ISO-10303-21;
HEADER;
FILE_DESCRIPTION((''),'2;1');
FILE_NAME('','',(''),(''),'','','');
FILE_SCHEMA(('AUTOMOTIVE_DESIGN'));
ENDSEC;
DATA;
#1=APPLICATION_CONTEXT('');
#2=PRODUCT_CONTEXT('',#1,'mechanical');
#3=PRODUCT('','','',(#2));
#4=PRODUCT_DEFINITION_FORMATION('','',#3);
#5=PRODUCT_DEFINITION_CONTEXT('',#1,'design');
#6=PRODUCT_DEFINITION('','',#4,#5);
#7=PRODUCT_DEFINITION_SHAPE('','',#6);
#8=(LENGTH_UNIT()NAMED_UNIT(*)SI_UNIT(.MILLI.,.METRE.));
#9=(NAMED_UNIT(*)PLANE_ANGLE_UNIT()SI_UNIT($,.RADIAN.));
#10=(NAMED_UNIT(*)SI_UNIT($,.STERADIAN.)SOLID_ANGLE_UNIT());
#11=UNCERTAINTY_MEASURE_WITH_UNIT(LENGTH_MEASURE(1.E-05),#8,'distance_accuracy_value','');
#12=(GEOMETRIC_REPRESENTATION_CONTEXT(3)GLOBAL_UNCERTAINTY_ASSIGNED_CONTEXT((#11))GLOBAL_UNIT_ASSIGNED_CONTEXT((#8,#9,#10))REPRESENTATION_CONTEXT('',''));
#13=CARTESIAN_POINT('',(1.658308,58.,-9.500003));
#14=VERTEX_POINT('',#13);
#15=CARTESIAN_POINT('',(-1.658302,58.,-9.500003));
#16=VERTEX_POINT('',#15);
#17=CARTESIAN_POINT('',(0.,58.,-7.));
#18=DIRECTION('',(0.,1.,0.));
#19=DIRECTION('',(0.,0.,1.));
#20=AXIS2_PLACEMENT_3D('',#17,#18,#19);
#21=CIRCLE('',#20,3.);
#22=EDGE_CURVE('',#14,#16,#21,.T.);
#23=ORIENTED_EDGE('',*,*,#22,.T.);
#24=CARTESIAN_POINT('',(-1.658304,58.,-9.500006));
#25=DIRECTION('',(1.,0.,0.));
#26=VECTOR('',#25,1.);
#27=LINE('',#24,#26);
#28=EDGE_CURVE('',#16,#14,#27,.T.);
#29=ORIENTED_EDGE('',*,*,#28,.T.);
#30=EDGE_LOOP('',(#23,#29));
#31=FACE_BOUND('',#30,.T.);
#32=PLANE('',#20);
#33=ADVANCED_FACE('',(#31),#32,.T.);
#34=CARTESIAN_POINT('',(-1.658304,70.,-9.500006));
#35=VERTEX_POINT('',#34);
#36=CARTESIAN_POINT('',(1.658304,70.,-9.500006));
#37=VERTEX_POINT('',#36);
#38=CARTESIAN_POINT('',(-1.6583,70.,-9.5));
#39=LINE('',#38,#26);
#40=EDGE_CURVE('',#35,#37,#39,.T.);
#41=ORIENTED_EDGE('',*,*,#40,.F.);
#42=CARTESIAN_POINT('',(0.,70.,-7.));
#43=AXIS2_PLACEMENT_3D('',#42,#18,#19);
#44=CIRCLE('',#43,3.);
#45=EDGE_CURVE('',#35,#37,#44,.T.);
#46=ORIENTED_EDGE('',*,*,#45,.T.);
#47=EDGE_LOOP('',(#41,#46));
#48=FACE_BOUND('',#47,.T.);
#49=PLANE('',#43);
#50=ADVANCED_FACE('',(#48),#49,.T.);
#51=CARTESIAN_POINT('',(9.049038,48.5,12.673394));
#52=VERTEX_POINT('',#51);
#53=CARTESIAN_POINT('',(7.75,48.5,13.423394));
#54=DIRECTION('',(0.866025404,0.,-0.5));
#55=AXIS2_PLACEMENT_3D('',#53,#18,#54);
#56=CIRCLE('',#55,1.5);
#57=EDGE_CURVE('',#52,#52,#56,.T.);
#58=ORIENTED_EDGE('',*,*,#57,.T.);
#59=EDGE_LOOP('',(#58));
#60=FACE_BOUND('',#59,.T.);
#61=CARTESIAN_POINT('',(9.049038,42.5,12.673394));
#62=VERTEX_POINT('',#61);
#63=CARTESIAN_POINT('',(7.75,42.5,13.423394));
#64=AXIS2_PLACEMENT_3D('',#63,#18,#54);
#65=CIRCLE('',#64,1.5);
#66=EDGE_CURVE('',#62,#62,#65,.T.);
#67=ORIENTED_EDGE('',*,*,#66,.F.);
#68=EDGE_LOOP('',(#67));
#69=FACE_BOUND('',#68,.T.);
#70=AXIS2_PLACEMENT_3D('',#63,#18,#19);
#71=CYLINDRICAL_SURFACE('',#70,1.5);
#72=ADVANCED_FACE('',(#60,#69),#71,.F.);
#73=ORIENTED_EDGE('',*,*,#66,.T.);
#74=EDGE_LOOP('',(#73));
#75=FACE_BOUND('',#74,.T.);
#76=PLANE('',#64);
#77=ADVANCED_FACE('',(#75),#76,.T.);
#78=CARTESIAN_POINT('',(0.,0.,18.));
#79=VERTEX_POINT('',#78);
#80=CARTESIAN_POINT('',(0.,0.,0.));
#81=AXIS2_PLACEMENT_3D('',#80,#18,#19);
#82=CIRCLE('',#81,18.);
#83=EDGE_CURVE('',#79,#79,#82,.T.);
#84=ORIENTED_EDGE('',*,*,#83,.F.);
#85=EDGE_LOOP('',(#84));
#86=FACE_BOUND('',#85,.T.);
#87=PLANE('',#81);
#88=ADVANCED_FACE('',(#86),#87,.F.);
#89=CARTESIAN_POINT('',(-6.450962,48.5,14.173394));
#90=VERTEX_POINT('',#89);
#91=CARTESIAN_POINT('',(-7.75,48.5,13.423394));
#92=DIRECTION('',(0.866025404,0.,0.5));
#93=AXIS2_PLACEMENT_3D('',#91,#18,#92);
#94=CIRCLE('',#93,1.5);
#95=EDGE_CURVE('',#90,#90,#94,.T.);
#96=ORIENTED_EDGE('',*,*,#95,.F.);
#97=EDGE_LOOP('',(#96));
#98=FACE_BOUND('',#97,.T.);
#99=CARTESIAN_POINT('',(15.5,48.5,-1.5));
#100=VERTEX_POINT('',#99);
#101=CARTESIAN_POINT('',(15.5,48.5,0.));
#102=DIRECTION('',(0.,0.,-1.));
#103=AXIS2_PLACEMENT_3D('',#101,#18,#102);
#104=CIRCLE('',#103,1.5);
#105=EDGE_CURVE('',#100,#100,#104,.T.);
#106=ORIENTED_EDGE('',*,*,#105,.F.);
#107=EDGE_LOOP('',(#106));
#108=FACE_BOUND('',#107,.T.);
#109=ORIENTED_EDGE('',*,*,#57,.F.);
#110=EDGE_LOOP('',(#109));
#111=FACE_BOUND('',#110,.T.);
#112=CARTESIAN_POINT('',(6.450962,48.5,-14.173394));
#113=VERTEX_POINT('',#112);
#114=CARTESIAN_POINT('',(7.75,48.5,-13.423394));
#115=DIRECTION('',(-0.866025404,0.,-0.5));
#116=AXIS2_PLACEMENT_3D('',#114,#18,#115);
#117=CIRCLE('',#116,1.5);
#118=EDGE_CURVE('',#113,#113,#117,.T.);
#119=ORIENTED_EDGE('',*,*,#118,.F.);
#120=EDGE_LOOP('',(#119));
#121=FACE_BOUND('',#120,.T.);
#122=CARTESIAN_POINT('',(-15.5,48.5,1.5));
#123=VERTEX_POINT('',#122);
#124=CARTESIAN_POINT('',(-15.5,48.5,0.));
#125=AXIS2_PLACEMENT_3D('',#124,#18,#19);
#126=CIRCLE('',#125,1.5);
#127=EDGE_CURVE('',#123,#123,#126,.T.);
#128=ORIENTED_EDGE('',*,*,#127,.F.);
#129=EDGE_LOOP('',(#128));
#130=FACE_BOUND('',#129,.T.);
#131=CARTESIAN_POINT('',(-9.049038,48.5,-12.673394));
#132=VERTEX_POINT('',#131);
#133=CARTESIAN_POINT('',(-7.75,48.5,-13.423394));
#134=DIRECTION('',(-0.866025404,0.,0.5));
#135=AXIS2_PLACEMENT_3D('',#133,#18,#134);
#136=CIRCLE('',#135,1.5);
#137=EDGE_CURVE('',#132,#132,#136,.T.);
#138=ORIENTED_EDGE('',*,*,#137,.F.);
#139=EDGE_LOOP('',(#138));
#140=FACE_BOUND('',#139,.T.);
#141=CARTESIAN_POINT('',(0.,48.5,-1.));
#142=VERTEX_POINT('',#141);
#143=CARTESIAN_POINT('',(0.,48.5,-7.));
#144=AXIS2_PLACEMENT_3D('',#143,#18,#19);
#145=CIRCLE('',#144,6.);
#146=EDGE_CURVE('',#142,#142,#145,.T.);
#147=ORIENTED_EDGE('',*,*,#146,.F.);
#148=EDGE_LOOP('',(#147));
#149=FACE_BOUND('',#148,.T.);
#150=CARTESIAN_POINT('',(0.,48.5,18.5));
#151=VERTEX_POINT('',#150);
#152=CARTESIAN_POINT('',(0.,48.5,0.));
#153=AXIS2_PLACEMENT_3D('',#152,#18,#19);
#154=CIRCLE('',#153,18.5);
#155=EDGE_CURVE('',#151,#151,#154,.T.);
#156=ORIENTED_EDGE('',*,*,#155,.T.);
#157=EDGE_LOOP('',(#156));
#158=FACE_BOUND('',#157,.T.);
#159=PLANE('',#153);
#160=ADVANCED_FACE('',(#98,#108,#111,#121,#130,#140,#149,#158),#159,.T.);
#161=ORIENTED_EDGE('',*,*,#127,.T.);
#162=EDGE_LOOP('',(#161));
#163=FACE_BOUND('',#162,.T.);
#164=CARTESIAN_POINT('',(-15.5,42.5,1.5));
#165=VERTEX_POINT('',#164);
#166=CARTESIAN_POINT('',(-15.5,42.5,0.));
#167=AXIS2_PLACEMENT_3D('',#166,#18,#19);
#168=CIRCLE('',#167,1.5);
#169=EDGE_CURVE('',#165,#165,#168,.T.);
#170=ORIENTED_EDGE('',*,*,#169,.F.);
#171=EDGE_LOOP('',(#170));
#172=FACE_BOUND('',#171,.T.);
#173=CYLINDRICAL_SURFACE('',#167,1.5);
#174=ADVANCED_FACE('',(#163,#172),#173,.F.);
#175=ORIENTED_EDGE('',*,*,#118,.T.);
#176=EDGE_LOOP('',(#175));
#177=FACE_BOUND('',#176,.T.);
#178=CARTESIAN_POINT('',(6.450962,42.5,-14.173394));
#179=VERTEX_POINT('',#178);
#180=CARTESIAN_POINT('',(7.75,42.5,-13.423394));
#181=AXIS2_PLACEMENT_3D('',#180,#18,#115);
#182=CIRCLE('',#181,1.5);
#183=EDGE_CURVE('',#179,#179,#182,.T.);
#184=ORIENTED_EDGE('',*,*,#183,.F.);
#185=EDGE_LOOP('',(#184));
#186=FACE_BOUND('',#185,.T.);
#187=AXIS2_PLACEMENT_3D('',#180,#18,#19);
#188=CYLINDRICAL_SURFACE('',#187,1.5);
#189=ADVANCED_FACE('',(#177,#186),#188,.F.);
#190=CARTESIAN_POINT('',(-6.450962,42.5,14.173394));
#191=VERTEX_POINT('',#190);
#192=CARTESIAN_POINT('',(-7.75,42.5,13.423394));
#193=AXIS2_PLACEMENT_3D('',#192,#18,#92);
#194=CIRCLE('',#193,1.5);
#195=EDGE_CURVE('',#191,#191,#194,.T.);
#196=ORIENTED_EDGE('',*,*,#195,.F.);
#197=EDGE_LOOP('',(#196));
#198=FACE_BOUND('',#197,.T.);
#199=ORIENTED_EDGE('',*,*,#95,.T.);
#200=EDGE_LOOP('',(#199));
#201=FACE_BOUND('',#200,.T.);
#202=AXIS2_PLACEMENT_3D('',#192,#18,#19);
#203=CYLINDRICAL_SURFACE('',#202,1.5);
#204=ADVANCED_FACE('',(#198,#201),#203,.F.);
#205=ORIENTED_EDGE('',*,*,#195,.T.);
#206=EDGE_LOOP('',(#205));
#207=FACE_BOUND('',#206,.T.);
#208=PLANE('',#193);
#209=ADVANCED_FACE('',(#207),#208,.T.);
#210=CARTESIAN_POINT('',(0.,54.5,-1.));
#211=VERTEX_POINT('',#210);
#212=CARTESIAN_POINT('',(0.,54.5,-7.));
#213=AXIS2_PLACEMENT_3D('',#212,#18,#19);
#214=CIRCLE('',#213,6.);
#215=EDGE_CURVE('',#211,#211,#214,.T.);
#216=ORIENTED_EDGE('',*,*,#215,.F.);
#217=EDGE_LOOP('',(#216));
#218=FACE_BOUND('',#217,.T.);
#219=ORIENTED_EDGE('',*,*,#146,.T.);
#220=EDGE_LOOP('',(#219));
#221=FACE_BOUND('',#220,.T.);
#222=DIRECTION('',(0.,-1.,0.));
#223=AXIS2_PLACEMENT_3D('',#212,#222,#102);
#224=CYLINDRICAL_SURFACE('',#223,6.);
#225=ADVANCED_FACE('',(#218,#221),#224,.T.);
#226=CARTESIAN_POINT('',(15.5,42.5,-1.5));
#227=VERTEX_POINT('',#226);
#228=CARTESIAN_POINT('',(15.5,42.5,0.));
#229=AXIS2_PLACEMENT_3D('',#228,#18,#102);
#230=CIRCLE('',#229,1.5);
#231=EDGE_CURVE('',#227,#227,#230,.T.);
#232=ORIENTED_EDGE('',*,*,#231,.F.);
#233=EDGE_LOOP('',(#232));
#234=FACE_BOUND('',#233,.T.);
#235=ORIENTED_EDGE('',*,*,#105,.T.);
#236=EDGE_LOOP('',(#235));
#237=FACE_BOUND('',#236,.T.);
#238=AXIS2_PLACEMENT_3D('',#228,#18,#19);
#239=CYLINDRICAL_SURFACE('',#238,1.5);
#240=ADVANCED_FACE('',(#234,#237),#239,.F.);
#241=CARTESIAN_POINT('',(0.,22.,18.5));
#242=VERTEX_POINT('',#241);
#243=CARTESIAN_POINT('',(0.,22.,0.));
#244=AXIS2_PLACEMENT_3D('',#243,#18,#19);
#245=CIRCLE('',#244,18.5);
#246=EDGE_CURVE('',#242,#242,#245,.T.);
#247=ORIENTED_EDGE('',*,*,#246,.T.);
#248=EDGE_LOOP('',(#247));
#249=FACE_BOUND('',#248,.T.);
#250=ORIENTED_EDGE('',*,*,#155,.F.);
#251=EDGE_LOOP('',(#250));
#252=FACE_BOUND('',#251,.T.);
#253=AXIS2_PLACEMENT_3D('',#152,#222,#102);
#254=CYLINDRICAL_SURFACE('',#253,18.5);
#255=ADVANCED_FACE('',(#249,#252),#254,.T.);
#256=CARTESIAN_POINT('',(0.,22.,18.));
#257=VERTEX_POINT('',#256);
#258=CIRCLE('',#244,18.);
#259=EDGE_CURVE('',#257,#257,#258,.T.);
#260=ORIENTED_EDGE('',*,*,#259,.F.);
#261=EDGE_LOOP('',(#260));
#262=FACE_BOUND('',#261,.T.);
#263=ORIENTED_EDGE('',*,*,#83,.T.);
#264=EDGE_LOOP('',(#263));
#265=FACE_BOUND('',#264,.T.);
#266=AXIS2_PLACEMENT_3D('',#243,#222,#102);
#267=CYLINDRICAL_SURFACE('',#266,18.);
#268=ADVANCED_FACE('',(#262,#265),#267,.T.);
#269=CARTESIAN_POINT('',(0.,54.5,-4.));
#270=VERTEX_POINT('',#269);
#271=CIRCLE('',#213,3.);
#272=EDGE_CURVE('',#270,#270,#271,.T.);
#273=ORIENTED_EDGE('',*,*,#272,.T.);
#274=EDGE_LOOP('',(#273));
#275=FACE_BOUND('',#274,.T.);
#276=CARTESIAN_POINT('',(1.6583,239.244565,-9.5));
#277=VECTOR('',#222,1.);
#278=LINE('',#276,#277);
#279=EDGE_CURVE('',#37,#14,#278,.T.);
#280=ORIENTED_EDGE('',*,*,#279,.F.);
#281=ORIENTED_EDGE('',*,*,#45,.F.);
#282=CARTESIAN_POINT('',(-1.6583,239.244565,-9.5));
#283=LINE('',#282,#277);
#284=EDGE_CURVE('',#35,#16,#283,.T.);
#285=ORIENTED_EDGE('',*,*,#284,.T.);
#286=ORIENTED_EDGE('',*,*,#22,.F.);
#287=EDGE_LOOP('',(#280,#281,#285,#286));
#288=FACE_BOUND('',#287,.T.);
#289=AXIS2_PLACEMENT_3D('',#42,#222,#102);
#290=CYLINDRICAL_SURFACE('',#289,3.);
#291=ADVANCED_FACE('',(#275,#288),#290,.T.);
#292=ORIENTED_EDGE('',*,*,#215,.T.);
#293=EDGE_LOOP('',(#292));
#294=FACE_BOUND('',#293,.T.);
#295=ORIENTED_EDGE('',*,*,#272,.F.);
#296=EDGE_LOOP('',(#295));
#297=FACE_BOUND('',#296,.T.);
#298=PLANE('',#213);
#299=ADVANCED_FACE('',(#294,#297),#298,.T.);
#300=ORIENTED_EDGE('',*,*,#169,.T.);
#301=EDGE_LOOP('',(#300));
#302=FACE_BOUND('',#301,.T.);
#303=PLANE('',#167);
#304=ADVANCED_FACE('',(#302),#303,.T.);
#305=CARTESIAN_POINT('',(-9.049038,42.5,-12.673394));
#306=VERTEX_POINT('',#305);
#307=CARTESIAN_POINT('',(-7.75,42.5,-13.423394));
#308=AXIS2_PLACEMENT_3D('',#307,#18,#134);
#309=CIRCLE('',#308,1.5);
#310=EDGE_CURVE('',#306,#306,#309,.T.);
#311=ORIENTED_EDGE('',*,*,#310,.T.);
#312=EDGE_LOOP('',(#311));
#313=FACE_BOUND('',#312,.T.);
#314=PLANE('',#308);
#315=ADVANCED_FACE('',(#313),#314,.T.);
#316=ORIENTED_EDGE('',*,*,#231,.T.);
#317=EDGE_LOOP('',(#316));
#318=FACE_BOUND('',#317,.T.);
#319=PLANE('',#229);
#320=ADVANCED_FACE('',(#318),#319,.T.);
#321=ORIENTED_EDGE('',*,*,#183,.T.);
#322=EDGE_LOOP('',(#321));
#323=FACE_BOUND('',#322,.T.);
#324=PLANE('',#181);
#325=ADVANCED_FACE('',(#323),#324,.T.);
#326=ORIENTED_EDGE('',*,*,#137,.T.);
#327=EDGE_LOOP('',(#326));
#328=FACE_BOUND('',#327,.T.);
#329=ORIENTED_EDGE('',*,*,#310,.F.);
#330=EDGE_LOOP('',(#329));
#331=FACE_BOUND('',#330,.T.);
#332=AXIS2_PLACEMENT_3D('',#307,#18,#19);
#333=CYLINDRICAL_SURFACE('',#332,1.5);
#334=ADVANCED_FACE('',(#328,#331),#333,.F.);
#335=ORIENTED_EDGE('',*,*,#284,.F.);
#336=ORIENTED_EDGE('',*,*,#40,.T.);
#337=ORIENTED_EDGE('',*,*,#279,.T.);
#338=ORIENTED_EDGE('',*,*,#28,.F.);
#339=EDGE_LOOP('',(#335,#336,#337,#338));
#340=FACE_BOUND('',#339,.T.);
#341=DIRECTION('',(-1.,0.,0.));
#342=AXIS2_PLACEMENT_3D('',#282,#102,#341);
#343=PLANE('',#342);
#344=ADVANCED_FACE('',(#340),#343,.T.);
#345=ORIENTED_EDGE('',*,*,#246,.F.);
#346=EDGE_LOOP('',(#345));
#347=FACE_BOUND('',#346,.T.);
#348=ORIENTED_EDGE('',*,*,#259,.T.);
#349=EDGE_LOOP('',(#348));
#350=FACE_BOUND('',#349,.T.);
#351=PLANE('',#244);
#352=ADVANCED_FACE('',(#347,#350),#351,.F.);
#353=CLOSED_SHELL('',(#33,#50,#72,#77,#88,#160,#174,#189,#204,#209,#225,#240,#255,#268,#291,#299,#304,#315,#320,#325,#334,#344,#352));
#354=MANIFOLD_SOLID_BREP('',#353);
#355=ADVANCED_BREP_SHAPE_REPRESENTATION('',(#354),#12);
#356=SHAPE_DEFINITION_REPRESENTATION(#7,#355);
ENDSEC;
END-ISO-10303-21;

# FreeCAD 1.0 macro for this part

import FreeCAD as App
import Part
import Sketcher
from FreeCAD import Vector

doc = App.newDocument("Part")
body = doc.addObject("PartDesign::Body", "Body")

# Sketch on XZ plane
sketch1 = body.newObject("Sketcher::SketchObject", "Sketch")
sketch1.AttachmentSupport = (doc.getObject("XZ_Plane"), [""])
sketch1.MapMode = "FlatFace"
sketch1.addGeometry(Part.Circle(Vector(0, 0, 0), Vector(0, 0, 1), 18), False)
sketch1.addConstraint([
    Sketcher.Constraint("Coincident", 0, 3, -1, 1),
    Sketcher.Constraint("Diameter", 0, 36.0),
])
pad1 = body.newObject("PartDesign::Pad", "Pad")
pad1.Profile = sketch1
pad1.Length = 22
pad1.Reversed = True

# Sketch on XZ plane
sketch2 = body.newObject("Sketcher::SketchObject", "Sketch001")
sketch2.AttachmentSupport = (doc.getObject("XZ_Plane"), [""])
sketch2.MapMode = "FlatFace"
sketch2.AttachmentOffset = App.Placement(Vector(0, 0, -22), App.Rotation())
sketch2.addGeometry(Part.Circle(Vector(0, 0, 0), Vector(0, 0, 1), 18), False)
sketch2.addConstraint([
    Sketcher.Constraint("Coincident", 0, 3, -1, 1),
    Sketcher.Constraint("Diameter", 0, 37.0),
])
pad2 = body.newObject("PartDesign::Pad", "Pad001")
pad2.Profile = sketch2
pad2.Length = 26.5
pad2.Reversed = True

# Sketch on XZ plane
sketch3 = body.newObject("Sketcher::SketchObject", "Sketch002")
sketch3.AttachmentSupport = (doc.getObject("XZ_Plane"), [""])
sketch3.MapMode = "FlatFace"
sketch3.AttachmentOffset = App.Placement(Vector(0, 0, -48.5), App.Rotation())
sketch3.addGeometry(Part.Circle(Vector(-15.5, 0, 0), Vector(0, 0, 1), 1.5), False)
sketch3.addConstraint([
    Sketcher.Constraint("PointOnObject", 0, 3, -1),
    Sketcher.Constraint("Diameter", 0, 3.0),
    Sketcher.Constraint("DistanceX", 0, 3, -1, 1, 15.5),
])
pocket1 = body.newObject("PartDesign::Pocket", "Pocket")
pocket1.Profile = sketch3
pocket1.Length = 6
pocket1.Reversed = True
doc.recompute()

polarpattern = body.newObject("PartDesign::PolarPattern", "PolarPattern")
polarpattern.Originals = [pocket1]
polarpattern.Axis = (doc.getObject("Y_Axis"), [""])
polarpattern.Angle = 360
polarpattern.Occurrences = 6
body.Tip = polarpattern

# Sketch on XZ plane
sketch4 = body.newObject("Sketcher::SketchObject", "Sketch003")
sketch4.AttachmentSupport = (doc.getObject("XZ_Plane"), [""])
sketch4.MapMode = "FlatFace"
sketch4.AttachmentOffset = App.Placement(Vector(0, 0, -48.5), App.Rotation())
sketch4.addGeometry(Part.Circle(Vector(0, -7, 0), Vector(0, 0, 1), 6), False)
sketch4.addConstraint([
    Sketcher.Constraint("PointOnObject", 0, 3, -2),
    Sketcher.Constraint("Diameter", 0, 12.0),
    Sketcher.Constraint("DistanceY", 0, 3, -1, 1, 7.0),
])
pad3 = body.newObject("PartDesign::Pad", "Pad002")
pad3.Profile = sketch4
pad3.Length = 6
pad3.Reversed = True

# Sketch on XZ plane
sketch5 = body.newObject("Sketcher::SketchObject", "Sketch004")
sketch5.AttachmentSupport = (doc.getObject("XZ_Plane"), [""])
sketch5.MapMode = "FlatFace"
sketch5.AttachmentOffset = App.Placement(Vector(0, 0, -54.5), App.Rotation())
sketch5.addGeometry(Part.Circle(Vector(0, -7, 0), Vector(0, 0, 1), 3), False)
sketch5.addConstraint([
    Sketcher.Constraint("PointOnObject", 0, 3, -2),
    Sketcher.Constraint("Diameter", 0, 6.0),
    Sketcher.Constraint("DistanceY", 0, 3, -1, 1, 7.0),
])
pad4 = body.newObject("PartDesign::Pad", "Pad003")
pad4.Profile = sketch5
pad4.Length = 15.5
pad4.Reversed = True

# Sketch on XZ plane
sketch6 = body.newObject("Sketcher::SketchObject", "Sketch005")
sketch6.AttachmentSupport = (doc.getObject("XZ_Plane"), [""])
sketch6.MapMode = "FlatFace"
sketch6.AttachmentOffset = App.Placement(Vector(0, 0, -70), App.Rotation())
sketch6.addGeometry([
    Part.LineSegment(Vector(-81, -10, 0), Vector(81, -10, 0)),
    Part.LineSegment(Vector(81, -10, 0), Vector(81, -168, 0)),
    Part.LineSegment(Vector(81, -168, 0), Vector(-81, -168, 0)),
    Part.LineSegment(Vector(-81, -168, 0), Vector(-81, -10, 0)),
], False)
sketch6.addConstraint([
    Sketcher.Constraint("Coincident", 0, 2, 1, 1),
    Sketcher.Constraint("Coincident", 1, 2, 2, 1),
    Sketcher.Constraint("Coincident", 2, 2, 3, 1),
    Sketcher.Constraint("Coincident", 3, 2, 0, 1),
    Sketcher.Constraint("Horizontal", 0),
    Sketcher.Constraint("Vertical", 1),
    Sketcher.Constraint("Horizontal", 2),
    Sketcher.Constraint("Vertical", 3),
    Sketcher.Constraint("DistanceY", 0, 2, -1, 1, 9.5),
    Sketcher.Constraint("DistanceX", 0, 1, 0, 2, 161.322806),
    Sketcher.Constraint("DistanceY", 1, 2, 1, 1, 158.006206),
    Sketcher.Constraint("DistanceX", -1, 1, 0, 2, 80.661403),
])
pocket2 = body.newObject("PartDesign::Pocket", "Pocket001")
pocket2.Profile = sketch6
pocket2.Type = "TwoLengths"
pocket2.Length = 1
pocket2.Length2 = 12

doc.recompute()
